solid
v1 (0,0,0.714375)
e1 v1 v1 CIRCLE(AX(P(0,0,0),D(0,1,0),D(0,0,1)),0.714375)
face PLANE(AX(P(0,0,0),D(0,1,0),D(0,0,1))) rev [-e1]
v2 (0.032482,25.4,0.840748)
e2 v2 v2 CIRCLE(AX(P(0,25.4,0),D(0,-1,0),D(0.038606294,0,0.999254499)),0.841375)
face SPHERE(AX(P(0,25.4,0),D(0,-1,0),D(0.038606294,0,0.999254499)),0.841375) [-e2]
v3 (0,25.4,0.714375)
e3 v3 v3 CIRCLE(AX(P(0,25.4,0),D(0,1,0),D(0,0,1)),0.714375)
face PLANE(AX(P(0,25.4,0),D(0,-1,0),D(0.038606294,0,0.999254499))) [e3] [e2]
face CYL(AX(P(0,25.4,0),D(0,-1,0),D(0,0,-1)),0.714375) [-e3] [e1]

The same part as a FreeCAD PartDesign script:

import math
import FreeCAD as App
import Part
import Sketcher
Q = App.Units.Quantity

doc = App.newDocument("Part")
body = doc.addObject("PartDesign::Body", "Body")

# Sketch on XZ plane
sketch1 = body.newObject("Sketcher::SketchObject", "Sketch")
sketch1.AttachmentSupport = (doc.getObject("XZ_Plane"), [""])
sketch1.MapMode = "FlatFace"
sketch1.addGeometry(Part.Circle(App.Vector(0, 0, 0), App.Vector(0, 0, 1), 0.7), False)
sketch1.addConstraint(Sketcher.Constraint("Coincident", 0, 3, -1, 1))
sketch1.addConstraint(Sketcher.Constraint("Diameter", 0, Q("1.42875 mm")))
pad1 = body.newObject("PartDesign::Pad", "Pad")
pad1.Profile = sketch1
pad1.Length = Q("1 in")
pad1.Reversed = True

# Sketch on XZ plane
sketch2 = body.newObject("Sketcher::SketchObject", "Sketch001")
sketch2.AttachmentSupport = (doc.getObject("XZ_Plane"), [""])
sketch2.MapMode = "FlatFace"
sketch2.AttachmentOffset = App.Placement(App.Vector(0, 0, -1 * 25.4), App.Rotation())
sketch2.addGeometry(Part.LineSegment(App.Vector(0, 0.8, 0), App.Vector(0, -0.8, 0)), False)
sketch2.addGeometry(Part.ArcOfCircle(Part.Circle(App.Vector(0, 0, 0), App.Vector(0, 0, 1), 0.8), math.radians(89), math.radians(269)), False)
sketch2.addGeometry(Part.LineSegment(App.Vector(0, 0.8, 0), App.Vector(0, -0.8, 0)), True)  # axis
sketch2.addConstraint(Sketcher.Constraint("Coincident", 0, 1, 1, 1))
sketch2.addConstraint(Sketcher.Constraint("Coincident", 1, 2, 0, 2))
sketch2.addConstraint(Sketcher.Constraint("Coincident", 1, 3, -1, 1))
sketch2.addConstraint(Sketcher.Constraint("Coincident", 2, 1, 0, 1))
sketch2.addConstraint(Sketcher.Constraint("Coincident", 2, 2, 1, 2))
sketch2.addConstraint(Sketcher.Constraint("Radius", 1, Q("0.841375 mm")))
sketch2.addConstraint(Sketcher.Constraint("DistanceY", -1, 1, 0, 1, Q("0.841218 mm")))
sketch2.addConstraint(Sketcher.Constraint("DistanceY", 1, 2, -1, 1, Q("0.841218 mm")))
revolution = body.newObject("PartDesign::Revolution", "Revolution")
revolution.Profile = sketch2
revolution.ReferenceAxis = (sketch2, ["Axis0"])
revolution.Angle = 180

doc.recompute()
